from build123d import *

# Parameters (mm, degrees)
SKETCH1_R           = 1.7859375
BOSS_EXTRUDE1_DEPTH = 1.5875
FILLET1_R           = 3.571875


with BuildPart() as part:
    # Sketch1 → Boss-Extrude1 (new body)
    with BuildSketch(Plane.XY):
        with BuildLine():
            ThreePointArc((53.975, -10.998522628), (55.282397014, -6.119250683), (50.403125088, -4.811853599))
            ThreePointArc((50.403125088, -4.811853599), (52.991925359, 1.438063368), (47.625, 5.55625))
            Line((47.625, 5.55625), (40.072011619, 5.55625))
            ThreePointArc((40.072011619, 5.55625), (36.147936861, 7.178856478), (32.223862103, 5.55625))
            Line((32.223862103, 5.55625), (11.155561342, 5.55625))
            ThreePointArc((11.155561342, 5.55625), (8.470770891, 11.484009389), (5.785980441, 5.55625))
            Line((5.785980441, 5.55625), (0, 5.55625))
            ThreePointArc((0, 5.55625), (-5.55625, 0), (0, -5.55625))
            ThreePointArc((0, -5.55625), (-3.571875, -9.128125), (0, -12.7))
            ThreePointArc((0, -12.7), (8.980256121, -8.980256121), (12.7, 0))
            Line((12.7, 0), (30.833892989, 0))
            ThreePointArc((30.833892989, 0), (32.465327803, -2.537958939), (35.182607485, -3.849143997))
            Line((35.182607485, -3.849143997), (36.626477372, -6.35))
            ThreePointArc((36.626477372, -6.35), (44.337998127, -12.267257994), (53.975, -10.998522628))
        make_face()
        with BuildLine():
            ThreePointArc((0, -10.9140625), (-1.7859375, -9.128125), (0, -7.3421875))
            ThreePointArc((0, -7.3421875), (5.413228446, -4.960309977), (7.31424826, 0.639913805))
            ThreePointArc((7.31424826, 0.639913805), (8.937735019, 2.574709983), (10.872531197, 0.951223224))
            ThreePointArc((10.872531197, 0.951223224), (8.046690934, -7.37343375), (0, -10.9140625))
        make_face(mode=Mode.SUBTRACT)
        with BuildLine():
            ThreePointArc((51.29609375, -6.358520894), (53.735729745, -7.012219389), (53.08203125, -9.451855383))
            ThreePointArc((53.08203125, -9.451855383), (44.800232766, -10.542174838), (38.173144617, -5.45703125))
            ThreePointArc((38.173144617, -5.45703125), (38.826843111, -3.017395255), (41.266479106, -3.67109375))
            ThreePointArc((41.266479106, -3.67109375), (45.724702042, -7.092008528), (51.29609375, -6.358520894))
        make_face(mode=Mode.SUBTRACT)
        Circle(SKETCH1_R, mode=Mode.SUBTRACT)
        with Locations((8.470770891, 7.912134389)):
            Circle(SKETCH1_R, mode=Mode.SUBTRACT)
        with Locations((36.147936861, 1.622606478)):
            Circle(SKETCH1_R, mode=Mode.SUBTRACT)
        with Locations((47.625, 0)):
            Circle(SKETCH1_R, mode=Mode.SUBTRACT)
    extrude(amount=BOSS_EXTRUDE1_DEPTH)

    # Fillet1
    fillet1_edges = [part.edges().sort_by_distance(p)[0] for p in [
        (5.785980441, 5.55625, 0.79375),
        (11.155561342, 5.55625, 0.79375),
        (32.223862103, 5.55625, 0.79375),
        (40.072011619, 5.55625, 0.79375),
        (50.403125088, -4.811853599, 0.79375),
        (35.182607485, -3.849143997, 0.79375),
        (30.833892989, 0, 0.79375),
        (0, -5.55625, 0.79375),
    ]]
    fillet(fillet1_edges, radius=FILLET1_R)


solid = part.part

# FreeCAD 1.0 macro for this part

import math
import FreeCAD as App
import Part
import Sketcher

V = App.Vector
Q = App.Units.Quantity


def edges_at(feature, points):
    """Names of the edges that pass closest to the given points."""
    edges = feature.Shape.Edges
    near = lambda p: min(range(len(edges)), key=lambda i: edges[i].distToShape(Part.Vertex(*p))[0])
    return sorted({f"Edge{near(p) + 1}" for p in points})

doc = App.newDocument("Part")
body = doc.addObject("PartDesign::Body", "Body")

# Sketch on XY plane
sketch1 = body.newObject("Sketcher::SketchObject", "Sketch")
sketch1.AttachmentSupport = (doc.getObject("XY_Plane"), [""])
sketch1.MapMode = "FlatFace"
sketch1.addGeometry([
    Part.ArcOfCircle(Part.Circle(V(52.2, -7.9, 0), V(0, 0, 1), 3.6), math.radians(-60), math.radians(120)),  # 0
    Part.ArcOfCircle(Part.Circle(V(47.6, 0, 0), V(0, 0, 1), 5.6), math.radians(-60), math.radians(90)),  # 1
    Part.LineSegment(V(47.6, 5.6, 0), V(40.1, 5.6, 0)),  # 2
    Part.ArcOfCircle(Part.Circle(V(36.1, 1.6, 0), V(0, 0, 1), 5.6), math.radians(45), math.radians(135)),  # 3
    Part.LineSegment(V(32.2, 5.6, 0), V(11.2, 5.6, 0)),  # 4
    Part.ArcOfCircle(Part.Circle(V(8.5, 7.9, 0), V(0, 0, 1), 3.6), math.radians(-41), math.radians(221)),  # 5
    Part.LineSegment(V(5.8, 5.6, 0), V(0, 5.6, 0)),  # 6
    Part.ArcOfCircle(Part.Circle(V(0, 0, 0), V(0, 0, 1), 5.6), math.radians(90), math.radians(270)),  # 7
    Part.ArcOfCircle(Part.Circle(V(0, -9.1, 0), V(0, 0, 1), 3.6), math.radians(90), math.radians(270)),  # 8
    Part.ArcOfCircle(Part.Circle(V(0, 0, 0), V(0, 0, 1), 12.7), math.radians(-90), math.radians(0)),  # 9
    Part.LineSegment(V(12.7, 0, 0), V(30.8, 0, 0)),  # 10
    Part.ArcOfCircle(Part.Circle(V(36.1, 1.6, 0), V(0, 0, 1), 5.6), math.radians(-163), math.radians(-100)),  # 11
    Part.LineSegment(V(35.2, -3.8, 0), V(36.6, -6.3, 0)),  # 12
    Part.ArcOfCircle(Part.Circle(V(47.6, 0, 0), V(0, 0, 1), 12.7), math.radians(-150), math.radians(-60)),  # 13
    Part.ArcOfCircle(Part.Circle(V(0, 0, 0), V(0, 0, 1), 10.9), math.radians(-90), math.radians(5)),  # 14
    Part.ArcOfCircle(Part.Circle(V(0, -9.1, 0), V(0, 0, 1), 1.8), math.radians(90), math.radians(270)),  # 15
    Part.ArcOfCircle(Part.Circle(V(0, 0, 0), V(0, 0, 1), 7.3), math.radians(-90), math.radians(5)),  # 16
    Part.ArcOfCircle(Part.Circle(V(9.1, 0.8, 0), V(0, 0, 1), 1.8), math.radians(5), math.radians(185)),  # 17
    Part.ArcOfCircle(Part.Circle(V(47.6, 0, 0), V(0, 0, 1), 7.3), math.radians(-150), math.radians(-60)),  # 18
    Part.ArcOfCircle(Part.Circle(V(52.2, -7.9, 0), V(0, 0, 1), 1.8), math.radians(-60), math.radians(120)),  # 19
    Part.ArcOfCircle(Part.Circle(V(47.6, 0, 0), V(0, 0, 1), 10.9), math.radians(-150), math.radians(-60)),  # 20
    Part.ArcOfCircle(Part.Circle(V(39.7, -4.6, 0), V(0, 0, 1), 1.8), math.radians(30), math.radians(210)),  # 21
    Part.Circle(V(0, 0, 0), V(0, 0, 1), 1.8),  # 22
    Part.Circle(V(8.5, 7.9, 0), V(0, 0, 1), 1.8),  # 23
    Part.Circle(V(36.1, 1.6, 0), V(0, 0, 1), 1.8),  # 24
    Part.Circle(V(47.6, 0, 0), V(0, 0, 1), 1.8),  # 25
], False)
sketch1.addConstraint([
    Sketcher.Constraint("Tangent", 0, 2, 1, 1),
    Sketcher.Constraint("Tangent", 1, 2, 2, 1),
    Sketcher.Constraint("Coincident", 2, 2, 3, 1),
    Sketcher.Constraint("Coincident", 3, 2, 4, 1),
    Sketcher.Constraint("Coincident", 4, 2, 5, 1),
    Sketcher.Constraint("Coincident", 5, 2, 6, 1),
    Sketcher.Constraint("Tangent", 6, 2, 7, 1),
    Sketcher.Constraint("Tangent", 7, 2, 8, 1),
    Sketcher.Constraint("Tangent", 8, 2, 9, 1),
    Sketcher.Constraint("Coincident", 9, 2, 10, 1),
    Sketcher.Constraint("Coincident", 10, 2, 11, 1),
    Sketcher.Constraint("Coincident", 11, 2, 12, 1),
    Sketcher.Constraint("Tangent", 12, 2, 13, 1),
    Sketcher.Constraint("Tangent", 13, 2, 0, 1),
    Sketcher.Constraint("Tangent", 14, 1, 15, 2),
    Sketcher.Constraint("Tangent", 15, 1, 16, 1),
    Sketcher.Constraint("Tangent", 16, 2, 17, 2),
    Sketcher.Constraint("Tangent", 17, 1, 14, 2),
    Sketcher.Constraint("Tangent", 18, 2, 19, 2),
    Sketcher.Constraint("Tangent", 19, 1, 20, 2),
    Sketcher.Constraint("Tangent", 20, 1, 21, 2),
    Sketcher.Constraint("Tangent", 21, 1, 18, 1),
    Sketcher.Constraint("Horizontal", 2),
    Sketcher.Constraint("Horizontal", 4),
    Sketcher.Constraint("Horizontal", 6),
    Sketcher.Constraint("Horizontal", 10),
    Sketcher.Constraint("Coincident", 7, 3, -1, 1),
    Sketcher.Constraint("Coincident", 9, 3, -1, 1),
    Sketcher.Constraint("Coincident", 14, 3, -1, 1),
    Sketcher.Constraint("Coincident", 16, 3, -1, 1),
    Sketcher.Constraint("Coincident", 22, 3, -1, 1),
    Sketcher.Constraint("Coincident", 11, 3, 3, 3),
    Sketcher.Constraint("Coincident", 13, 3, 1, 3),
    Sketcher.Constraint("Coincident", 15, 3, 8, 3),
    Sketcher.Constraint("Coincident", 18, 3, 1, 3),
    Sketcher.Constraint("Coincident", 19, 3, 0, 3),
    Sketcher.Constraint("Coincident", 20, 3, 1, 3),
    Sketcher.Constraint("Coincident", 23, 3, 5, 3),
    Sketcher.Constraint("Coincident", 24, 3, 3, 3),
    Sketcher.Constraint("Coincident", 25, 3, 1, 3),
    Sketcher.Constraint("Equal", 1, 3),
    Sketcher.Constraint("Equal", 0, 5),
    Sketcher.Constraint("Equal", 3, 7),
    Sketcher.Constraint("Equal", 5, 8),
    Sketcher.Constraint("Equal", 7, 11),
    Sketcher.Constraint("Equal", 16, 18),
    Sketcher.Constraint("Equal", 21, 22),
    Sketcher.Constraint("Equal", 22, 23),
    Sketcher.Constraint("Equal", 23, 24),
    Sketcher.Constraint("Equal", 24, 25),
    Sketcher.Constraint("PointOnObject", 1, 3, -1),
    Sketcher.Constraint("PointOnObject", 8, 3, -2),
    Sketcher.Constraint("PointOnObject", 9, 2, -1),
    Sketcher.Constraint("Horizontal", 2, 2, 3, 2),
    Sketcher.Constraint("Radius", 9, Q("0.5 in")),
    Sketcher.Constraint("Diameter", 22, Q("0.140625 in")),
    Sketcher.Constraint("Angle", 12, Q("-60 deg")),
    Sketcher.Constraint("Radius", 0, Q("0.140625 in")),
    Sketcher.Constraint("DistanceX", 18, 3, 13, 2, Q("0.25 in")),
    Sketcher.Constraint("DistanceX", -1, 1, 1, 3, Q("1.875 in")),
    Sketcher.Constraint("DistanceX", 11, 3, 21, 3, Q("0.140625 in")),
    Sketcher.Constraint("DistanceX", 4, 2, 4, 1, 21.068301),
    Sketcher.Constraint("DistanceX", 2, 2, 2, 1, 7.552988),
    Sketcher.Constraint("DistanceX", 6, 2, 6, 1, 5.78598),
    Sketcher.Constraint("DistanceX", 12, 2, 21, 1, 4.640002),
    Sketcher.Constraint("DistanceX", -1, 1, 17, 3, 9.09339),
])
pad1 = body.newObject("PartDesign::Pad", "Pad")
pad1.Profile = sketch1
pad1.Length = Q("0.0625 in")
doc.recompute()

fillet = body.newObject("PartDesign::Fillet", "Fillet")
fillet.Base = (pad1, edges_at(pad1, [
    (5.786, 5.556, 0.794),
    (11.156, 5.556, 0.794),
    (32.224, 5.556, 0.794),
    (40.072, 5.556, 0.794),
    (50.403, -4.812, 0.794),
    (35.183, -3.849, 0.794),
    (30.834, 0, 0.794),
    (0, -5.556, 0.794),
]))
fillet.Radius = Q("0.140625 in")

doc.recompute()
